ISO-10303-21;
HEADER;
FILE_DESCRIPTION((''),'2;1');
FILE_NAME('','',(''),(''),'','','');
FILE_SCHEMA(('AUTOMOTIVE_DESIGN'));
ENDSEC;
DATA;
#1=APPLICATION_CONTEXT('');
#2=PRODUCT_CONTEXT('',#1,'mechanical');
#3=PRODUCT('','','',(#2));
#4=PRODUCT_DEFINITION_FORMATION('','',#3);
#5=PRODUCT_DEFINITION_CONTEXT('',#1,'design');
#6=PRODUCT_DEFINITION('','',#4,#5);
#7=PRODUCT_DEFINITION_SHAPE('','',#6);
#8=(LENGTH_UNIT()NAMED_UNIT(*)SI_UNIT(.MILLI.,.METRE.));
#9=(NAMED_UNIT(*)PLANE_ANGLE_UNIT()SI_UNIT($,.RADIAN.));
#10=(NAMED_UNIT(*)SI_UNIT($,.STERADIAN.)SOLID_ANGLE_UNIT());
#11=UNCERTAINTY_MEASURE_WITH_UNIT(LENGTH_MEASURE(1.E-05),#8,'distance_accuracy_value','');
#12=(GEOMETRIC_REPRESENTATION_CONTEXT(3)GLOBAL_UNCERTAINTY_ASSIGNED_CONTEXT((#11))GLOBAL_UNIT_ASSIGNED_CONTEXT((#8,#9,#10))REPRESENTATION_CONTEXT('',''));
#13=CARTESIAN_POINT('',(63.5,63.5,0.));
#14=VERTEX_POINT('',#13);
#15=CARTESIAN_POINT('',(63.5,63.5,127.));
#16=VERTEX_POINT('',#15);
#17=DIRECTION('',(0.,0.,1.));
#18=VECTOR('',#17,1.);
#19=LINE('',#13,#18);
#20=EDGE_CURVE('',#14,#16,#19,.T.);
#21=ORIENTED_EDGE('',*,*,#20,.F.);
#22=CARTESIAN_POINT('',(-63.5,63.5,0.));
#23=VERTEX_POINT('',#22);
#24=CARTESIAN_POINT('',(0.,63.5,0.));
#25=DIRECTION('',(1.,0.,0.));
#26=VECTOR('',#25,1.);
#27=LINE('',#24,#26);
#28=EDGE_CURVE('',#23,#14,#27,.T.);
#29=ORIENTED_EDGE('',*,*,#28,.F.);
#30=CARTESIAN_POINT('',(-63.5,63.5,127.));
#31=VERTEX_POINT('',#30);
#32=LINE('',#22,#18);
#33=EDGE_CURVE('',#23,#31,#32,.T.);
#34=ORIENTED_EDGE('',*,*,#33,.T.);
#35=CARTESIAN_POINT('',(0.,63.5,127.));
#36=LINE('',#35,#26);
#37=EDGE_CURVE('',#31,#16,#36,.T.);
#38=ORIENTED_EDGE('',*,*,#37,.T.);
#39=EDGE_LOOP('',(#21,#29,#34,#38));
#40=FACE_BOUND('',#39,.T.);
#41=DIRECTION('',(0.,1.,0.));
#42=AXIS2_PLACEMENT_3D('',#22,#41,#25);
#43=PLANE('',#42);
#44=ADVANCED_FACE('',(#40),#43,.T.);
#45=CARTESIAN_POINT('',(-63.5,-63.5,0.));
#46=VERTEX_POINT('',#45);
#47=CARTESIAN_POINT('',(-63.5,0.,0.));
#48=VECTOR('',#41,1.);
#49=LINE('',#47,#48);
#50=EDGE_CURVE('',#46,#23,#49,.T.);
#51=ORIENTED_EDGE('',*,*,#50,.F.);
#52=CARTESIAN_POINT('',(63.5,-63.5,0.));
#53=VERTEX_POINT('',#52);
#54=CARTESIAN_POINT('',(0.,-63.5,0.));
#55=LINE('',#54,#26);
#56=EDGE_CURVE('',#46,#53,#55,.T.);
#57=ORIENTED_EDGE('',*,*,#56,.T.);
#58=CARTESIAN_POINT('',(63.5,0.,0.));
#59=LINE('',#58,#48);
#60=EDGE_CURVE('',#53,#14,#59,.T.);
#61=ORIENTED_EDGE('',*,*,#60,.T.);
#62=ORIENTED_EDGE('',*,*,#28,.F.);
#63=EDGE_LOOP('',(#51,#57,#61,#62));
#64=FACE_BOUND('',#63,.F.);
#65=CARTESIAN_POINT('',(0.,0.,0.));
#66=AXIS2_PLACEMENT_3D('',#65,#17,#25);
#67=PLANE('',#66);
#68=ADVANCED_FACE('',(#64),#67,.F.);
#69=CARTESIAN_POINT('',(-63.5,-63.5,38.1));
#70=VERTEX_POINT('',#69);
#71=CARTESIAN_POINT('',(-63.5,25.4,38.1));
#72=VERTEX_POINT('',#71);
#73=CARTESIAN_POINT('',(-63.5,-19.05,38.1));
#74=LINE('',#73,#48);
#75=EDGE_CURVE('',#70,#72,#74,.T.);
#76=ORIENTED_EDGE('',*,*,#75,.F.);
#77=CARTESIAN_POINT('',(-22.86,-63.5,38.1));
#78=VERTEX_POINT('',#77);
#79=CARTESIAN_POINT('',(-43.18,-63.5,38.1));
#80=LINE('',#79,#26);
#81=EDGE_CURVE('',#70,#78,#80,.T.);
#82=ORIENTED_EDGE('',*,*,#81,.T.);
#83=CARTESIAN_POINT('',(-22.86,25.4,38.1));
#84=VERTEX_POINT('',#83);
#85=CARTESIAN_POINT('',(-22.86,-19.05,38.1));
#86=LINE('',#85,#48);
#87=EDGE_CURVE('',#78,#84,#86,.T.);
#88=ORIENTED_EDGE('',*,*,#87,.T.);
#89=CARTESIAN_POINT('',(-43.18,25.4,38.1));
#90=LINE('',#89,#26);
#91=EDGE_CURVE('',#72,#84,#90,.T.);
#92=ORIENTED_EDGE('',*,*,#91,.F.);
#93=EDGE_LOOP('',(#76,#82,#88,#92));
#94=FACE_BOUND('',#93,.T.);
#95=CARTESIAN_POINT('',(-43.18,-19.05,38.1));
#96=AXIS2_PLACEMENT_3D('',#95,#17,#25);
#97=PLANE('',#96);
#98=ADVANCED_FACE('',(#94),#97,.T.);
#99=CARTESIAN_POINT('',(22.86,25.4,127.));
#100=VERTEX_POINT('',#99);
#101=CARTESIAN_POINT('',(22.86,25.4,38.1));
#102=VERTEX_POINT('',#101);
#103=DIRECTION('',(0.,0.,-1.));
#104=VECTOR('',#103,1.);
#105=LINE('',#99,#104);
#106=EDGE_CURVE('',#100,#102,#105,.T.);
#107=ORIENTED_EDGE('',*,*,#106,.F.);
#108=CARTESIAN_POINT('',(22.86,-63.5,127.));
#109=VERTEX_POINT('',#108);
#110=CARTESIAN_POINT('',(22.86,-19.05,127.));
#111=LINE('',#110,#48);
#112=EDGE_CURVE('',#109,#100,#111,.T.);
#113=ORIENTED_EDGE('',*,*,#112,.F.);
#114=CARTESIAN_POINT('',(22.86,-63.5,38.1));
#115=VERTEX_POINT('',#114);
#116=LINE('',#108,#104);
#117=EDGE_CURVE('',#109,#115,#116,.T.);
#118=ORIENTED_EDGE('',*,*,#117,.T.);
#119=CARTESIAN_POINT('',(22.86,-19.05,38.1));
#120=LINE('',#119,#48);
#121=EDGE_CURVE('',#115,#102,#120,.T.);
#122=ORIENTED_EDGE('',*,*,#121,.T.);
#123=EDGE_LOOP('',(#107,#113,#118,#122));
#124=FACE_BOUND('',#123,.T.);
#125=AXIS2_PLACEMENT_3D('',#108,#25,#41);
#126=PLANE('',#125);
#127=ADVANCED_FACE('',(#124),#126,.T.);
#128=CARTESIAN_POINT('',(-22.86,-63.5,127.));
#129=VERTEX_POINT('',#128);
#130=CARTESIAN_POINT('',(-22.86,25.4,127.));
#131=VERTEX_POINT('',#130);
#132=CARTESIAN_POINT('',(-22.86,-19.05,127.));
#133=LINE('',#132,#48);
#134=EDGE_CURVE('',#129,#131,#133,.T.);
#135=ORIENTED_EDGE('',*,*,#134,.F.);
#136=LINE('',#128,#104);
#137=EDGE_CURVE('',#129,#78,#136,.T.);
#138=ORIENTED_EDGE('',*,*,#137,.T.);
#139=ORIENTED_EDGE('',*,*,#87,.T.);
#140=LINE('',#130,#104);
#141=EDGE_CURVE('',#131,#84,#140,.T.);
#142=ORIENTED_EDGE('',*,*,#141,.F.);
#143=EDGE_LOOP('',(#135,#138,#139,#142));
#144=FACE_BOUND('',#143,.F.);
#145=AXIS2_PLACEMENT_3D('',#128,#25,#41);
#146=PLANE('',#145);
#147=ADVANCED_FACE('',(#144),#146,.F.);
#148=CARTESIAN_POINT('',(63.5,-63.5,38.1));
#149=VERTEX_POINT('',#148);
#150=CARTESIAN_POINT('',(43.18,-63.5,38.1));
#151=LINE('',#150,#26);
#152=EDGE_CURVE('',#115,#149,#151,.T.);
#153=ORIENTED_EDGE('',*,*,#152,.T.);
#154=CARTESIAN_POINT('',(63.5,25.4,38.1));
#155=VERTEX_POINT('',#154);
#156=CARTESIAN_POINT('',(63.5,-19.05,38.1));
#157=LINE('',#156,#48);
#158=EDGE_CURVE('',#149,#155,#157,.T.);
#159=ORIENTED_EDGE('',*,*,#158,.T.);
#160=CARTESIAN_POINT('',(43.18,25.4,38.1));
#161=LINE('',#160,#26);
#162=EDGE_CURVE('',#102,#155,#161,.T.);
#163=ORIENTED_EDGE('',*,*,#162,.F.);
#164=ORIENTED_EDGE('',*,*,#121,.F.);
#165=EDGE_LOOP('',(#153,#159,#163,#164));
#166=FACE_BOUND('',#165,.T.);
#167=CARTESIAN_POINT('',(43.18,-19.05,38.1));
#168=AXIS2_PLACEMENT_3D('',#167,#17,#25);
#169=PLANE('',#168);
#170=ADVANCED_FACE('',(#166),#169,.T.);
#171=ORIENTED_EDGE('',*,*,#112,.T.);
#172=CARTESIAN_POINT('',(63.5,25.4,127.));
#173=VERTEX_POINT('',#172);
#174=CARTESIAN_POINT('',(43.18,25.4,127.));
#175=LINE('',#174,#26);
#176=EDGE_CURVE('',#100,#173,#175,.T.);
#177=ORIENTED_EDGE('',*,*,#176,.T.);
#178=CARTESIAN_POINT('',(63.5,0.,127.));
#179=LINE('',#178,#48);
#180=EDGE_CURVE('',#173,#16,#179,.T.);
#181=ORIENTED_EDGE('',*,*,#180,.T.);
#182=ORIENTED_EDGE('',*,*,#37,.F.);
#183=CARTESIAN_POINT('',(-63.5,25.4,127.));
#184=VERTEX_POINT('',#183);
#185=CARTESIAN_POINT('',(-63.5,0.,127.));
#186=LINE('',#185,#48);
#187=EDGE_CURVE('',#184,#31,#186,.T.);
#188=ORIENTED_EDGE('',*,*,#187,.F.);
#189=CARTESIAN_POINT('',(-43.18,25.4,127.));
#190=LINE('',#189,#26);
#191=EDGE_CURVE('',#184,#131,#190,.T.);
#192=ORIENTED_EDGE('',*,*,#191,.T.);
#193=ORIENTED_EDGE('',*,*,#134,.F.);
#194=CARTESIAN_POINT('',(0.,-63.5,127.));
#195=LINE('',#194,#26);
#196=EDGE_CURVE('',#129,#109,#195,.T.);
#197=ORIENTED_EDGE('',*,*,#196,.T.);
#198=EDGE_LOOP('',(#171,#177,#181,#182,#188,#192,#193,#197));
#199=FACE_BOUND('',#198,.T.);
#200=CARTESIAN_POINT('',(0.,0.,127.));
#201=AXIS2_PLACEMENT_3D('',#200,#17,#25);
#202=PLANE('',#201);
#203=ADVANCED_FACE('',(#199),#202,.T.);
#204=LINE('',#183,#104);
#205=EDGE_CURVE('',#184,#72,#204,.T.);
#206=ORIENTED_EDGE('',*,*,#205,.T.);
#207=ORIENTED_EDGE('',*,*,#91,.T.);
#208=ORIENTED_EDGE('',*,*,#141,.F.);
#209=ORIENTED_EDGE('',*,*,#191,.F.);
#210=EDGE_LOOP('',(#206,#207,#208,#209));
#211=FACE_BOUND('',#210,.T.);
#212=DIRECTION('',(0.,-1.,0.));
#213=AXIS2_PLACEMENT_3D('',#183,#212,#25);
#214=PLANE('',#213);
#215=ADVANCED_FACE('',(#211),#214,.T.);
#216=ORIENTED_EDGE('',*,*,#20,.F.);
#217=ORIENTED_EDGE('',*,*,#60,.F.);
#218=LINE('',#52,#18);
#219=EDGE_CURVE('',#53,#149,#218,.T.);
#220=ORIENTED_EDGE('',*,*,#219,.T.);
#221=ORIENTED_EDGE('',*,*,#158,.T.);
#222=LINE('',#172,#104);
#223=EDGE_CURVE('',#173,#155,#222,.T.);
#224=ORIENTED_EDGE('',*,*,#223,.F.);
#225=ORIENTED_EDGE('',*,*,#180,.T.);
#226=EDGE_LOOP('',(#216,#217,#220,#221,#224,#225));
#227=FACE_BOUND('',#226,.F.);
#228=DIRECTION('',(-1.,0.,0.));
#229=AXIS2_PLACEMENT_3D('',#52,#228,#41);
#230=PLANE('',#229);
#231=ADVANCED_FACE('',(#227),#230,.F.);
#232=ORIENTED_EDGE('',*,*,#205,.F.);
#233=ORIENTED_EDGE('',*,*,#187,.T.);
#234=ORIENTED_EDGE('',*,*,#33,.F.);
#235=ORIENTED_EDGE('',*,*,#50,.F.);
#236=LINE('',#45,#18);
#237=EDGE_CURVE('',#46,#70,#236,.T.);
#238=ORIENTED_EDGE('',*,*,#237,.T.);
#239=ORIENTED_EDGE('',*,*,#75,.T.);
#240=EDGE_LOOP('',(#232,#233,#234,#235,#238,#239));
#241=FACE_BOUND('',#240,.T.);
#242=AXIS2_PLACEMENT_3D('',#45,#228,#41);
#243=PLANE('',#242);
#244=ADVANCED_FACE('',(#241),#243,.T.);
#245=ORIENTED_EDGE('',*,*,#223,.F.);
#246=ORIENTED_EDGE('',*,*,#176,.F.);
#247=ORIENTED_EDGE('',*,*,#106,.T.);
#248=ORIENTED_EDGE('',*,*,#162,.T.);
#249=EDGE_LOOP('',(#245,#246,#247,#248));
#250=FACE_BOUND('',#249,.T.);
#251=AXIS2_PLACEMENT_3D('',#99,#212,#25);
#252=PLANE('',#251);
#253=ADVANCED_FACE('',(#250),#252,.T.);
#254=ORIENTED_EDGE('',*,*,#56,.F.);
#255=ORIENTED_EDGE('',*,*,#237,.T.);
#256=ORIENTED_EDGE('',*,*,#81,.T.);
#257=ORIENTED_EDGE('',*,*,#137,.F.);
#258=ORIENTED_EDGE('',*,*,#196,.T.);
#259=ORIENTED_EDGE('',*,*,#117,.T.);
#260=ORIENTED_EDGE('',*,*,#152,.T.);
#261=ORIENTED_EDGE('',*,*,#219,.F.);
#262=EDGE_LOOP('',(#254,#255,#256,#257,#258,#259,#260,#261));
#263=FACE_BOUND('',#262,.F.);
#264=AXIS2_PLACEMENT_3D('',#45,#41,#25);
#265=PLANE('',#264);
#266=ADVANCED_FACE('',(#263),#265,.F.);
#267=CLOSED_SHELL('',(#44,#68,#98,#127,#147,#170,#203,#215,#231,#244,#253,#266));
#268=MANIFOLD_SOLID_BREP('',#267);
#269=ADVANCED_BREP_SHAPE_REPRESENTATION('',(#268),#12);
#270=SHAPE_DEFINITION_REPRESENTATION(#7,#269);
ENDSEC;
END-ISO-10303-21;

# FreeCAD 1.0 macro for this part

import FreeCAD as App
import Part
import Sketcher

V = App.Vector
Q = App.Units.Quantity

doc = App.newDocument("Part")
body = doc.addObject("PartDesign::Body", "Body")

# Sketch on XY plane
sketch1 = body.newObject("Sketcher::SketchObject", "Sketch")
sketch1.AttachmentSupport = (doc.getObject("XY_Plane"), [""])
sketch1.MapMode = "FlatFace"
sketch1.addGeometry(Part.LineSegment(V(-64, 64, 0), V(-64, -64, 0)), False)
sketch1.addGeometry(Part.LineSegment(V(-64, -64, 0), V(64, -64, 0)), False)
sketch1.addGeometry(Part.LineSegment(V(64, -64, 0), V(64, 64, 0)), False)
sketch1.addGeometry(Part.LineSegment(V(64, 64, 0), V(-64, 64, 0)), False)
sketch1.addConstraint(Sketcher.Constraint("Coincident", 0, 2, 1, 1))
sketch1.addConstraint(Sketcher.Constraint("Coincident", 1, 2, 2, 1))
sketch1.addConstraint(Sketcher.Constraint("Coincident", 2, 2, 3, 1))
sketch1.addConstraint(Sketcher.Constraint("Coincident", 3, 2, 0, 1))
sketch1.addConstraint(Sketcher.Constraint("Vertical", 0))
sketch1.addConstraint(Sketcher.Constraint("Horizontal", 1))
sketch1.addConstraint(Sketcher.Constraint("Vertical", 2))
sketch1.addConstraint(Sketcher.Constraint("Horizontal", 3))
sketch1.addConstraint(Sketcher.Constraint("Symmetric", 0, 2, 2, 2, -1, 1))
sketch1.addConstraint(Sketcher.Constraint("Equal", 3, 0))
sketch1.addConstraint(Sketcher.Constraint("DistanceX", 1, 1, 1, 2, Q("5 in")))
pad1 = body.newObject("PartDesign::Pad", "Pad")
pad1.Profile = sketch1
pad1.Length = Q("5 in")

# Sketch on XY plane
sketch2 = body.newObject("Sketcher::SketchObject", "Sketch001")
sketch2.AttachmentSupport = (doc.getObject("XY_Plane"), [""])
sketch2.MapMode = "FlatFace"
sketch2.AttachmentOffset = App.Placement(V(0, 0, 5 * 25.4), App.Rotation())
sketch2.addGeometry(Part.LineSegment(V(-64, 25, 0), V(-64, -64, 0)), False)
sketch2.addGeometry(Part.LineSegment(V(-64, -64, 0), V(-23, -64, 0)), False)
sketch2.addGeometry(Part.LineSegment(V(-23, -64, 0), V(-23, 25, 0)), False)
sketch2.addGeometry(Part.LineSegment(V(-23, 25, 0), V(-64, 25, 0)), False)
sketch2.addGeometry(Part.LineSegment(V(23, 25, 0), V(23, -64, 0)), False)
sketch2.addGeometry(Part.LineSegment(V(23, -64, 0), V(64, -64, 0)), False)
sketch2.addGeometry(Part.LineSegment(V(64, -64, 0), V(64, 25, 0)), False)
sketch2.addGeometry(Part.LineSegment(V(64, 25, 0), V(23, 25, 0)), False)
sketch2.addConstraint(Sketcher.Constraint("Coincident", 0, 2, 1, 1))
sketch2.addConstraint(Sketcher.Constraint("Coincident", 1, 2, 2, 1))
sketch2.addConstraint(Sketcher.Constraint("Coincident", 2, 2, 3, 1))
sketch2.addConstraint(Sketcher.Constraint("Coincident", 3, 2, 0, 1))
sketch2.addConstraint(Sketcher.Constraint("Coincident", 4, 2, 5, 1))
sketch2.addConstraint(Sketcher.Constraint("Coincident", 5, 2, 6, 1))
sketch2.addConstraint(Sketcher.Constraint("Coincident", 6, 2, 7, 1))
sketch2.addConstraint(Sketcher.Constraint("Coincident", 7, 2, 4, 1))
sketch2.addConstraint(Sketcher.Constraint("Vertical", 0))
sketch2.addConstraint(Sketcher.Constraint("Horizontal", 1))
sketch2.addConstraint(Sketcher.Constraint("Vertical", 2))
sketch2.addConstraint(Sketcher.Constraint("Horizontal", 3))
sketch2.addConstraint(Sketcher.Constraint("Vertical", 4))
sketch2.addConstraint(Sketcher.Constraint("Horizontal", 5))
sketch2.addConstraint(Sketcher.Constraint("Vertical", 6))
sketch2.addConstraint(Sketcher.Constraint("Horizontal", 7))
sketch2.addConstraint(Sketcher.Constraint("Symmetric", 1, 2, 4, 2, -2))
sketch2.addConstraint(Sketcher.Constraint("Symmetric", 3, 2, 6, 2, -2))
sketch2.addConstraint(Sketcher.Constraint("DistanceX", 1, 1, 1, 2, Q("1.6 in")))
sketch2.addConstraint(Sketcher.Constraint("DistanceY", 0, 2, 0, 1, Q("3.5 in")))
sketch2.addConstraint(Sketcher.Constraint("DistanceY", -1, 1, 2, 2, Q("1 in")))
sketch2.addConstraint(Sketcher.Constraint("DistanceX", 0, 2, 5, 2, Q("5 in")))
pocket1 = body.newObject("PartDesign::Pocket", "Pocket")
pocket1.Profile = sketch2
pocket1.Length = Q("3.5 in")

doc.recompute()
